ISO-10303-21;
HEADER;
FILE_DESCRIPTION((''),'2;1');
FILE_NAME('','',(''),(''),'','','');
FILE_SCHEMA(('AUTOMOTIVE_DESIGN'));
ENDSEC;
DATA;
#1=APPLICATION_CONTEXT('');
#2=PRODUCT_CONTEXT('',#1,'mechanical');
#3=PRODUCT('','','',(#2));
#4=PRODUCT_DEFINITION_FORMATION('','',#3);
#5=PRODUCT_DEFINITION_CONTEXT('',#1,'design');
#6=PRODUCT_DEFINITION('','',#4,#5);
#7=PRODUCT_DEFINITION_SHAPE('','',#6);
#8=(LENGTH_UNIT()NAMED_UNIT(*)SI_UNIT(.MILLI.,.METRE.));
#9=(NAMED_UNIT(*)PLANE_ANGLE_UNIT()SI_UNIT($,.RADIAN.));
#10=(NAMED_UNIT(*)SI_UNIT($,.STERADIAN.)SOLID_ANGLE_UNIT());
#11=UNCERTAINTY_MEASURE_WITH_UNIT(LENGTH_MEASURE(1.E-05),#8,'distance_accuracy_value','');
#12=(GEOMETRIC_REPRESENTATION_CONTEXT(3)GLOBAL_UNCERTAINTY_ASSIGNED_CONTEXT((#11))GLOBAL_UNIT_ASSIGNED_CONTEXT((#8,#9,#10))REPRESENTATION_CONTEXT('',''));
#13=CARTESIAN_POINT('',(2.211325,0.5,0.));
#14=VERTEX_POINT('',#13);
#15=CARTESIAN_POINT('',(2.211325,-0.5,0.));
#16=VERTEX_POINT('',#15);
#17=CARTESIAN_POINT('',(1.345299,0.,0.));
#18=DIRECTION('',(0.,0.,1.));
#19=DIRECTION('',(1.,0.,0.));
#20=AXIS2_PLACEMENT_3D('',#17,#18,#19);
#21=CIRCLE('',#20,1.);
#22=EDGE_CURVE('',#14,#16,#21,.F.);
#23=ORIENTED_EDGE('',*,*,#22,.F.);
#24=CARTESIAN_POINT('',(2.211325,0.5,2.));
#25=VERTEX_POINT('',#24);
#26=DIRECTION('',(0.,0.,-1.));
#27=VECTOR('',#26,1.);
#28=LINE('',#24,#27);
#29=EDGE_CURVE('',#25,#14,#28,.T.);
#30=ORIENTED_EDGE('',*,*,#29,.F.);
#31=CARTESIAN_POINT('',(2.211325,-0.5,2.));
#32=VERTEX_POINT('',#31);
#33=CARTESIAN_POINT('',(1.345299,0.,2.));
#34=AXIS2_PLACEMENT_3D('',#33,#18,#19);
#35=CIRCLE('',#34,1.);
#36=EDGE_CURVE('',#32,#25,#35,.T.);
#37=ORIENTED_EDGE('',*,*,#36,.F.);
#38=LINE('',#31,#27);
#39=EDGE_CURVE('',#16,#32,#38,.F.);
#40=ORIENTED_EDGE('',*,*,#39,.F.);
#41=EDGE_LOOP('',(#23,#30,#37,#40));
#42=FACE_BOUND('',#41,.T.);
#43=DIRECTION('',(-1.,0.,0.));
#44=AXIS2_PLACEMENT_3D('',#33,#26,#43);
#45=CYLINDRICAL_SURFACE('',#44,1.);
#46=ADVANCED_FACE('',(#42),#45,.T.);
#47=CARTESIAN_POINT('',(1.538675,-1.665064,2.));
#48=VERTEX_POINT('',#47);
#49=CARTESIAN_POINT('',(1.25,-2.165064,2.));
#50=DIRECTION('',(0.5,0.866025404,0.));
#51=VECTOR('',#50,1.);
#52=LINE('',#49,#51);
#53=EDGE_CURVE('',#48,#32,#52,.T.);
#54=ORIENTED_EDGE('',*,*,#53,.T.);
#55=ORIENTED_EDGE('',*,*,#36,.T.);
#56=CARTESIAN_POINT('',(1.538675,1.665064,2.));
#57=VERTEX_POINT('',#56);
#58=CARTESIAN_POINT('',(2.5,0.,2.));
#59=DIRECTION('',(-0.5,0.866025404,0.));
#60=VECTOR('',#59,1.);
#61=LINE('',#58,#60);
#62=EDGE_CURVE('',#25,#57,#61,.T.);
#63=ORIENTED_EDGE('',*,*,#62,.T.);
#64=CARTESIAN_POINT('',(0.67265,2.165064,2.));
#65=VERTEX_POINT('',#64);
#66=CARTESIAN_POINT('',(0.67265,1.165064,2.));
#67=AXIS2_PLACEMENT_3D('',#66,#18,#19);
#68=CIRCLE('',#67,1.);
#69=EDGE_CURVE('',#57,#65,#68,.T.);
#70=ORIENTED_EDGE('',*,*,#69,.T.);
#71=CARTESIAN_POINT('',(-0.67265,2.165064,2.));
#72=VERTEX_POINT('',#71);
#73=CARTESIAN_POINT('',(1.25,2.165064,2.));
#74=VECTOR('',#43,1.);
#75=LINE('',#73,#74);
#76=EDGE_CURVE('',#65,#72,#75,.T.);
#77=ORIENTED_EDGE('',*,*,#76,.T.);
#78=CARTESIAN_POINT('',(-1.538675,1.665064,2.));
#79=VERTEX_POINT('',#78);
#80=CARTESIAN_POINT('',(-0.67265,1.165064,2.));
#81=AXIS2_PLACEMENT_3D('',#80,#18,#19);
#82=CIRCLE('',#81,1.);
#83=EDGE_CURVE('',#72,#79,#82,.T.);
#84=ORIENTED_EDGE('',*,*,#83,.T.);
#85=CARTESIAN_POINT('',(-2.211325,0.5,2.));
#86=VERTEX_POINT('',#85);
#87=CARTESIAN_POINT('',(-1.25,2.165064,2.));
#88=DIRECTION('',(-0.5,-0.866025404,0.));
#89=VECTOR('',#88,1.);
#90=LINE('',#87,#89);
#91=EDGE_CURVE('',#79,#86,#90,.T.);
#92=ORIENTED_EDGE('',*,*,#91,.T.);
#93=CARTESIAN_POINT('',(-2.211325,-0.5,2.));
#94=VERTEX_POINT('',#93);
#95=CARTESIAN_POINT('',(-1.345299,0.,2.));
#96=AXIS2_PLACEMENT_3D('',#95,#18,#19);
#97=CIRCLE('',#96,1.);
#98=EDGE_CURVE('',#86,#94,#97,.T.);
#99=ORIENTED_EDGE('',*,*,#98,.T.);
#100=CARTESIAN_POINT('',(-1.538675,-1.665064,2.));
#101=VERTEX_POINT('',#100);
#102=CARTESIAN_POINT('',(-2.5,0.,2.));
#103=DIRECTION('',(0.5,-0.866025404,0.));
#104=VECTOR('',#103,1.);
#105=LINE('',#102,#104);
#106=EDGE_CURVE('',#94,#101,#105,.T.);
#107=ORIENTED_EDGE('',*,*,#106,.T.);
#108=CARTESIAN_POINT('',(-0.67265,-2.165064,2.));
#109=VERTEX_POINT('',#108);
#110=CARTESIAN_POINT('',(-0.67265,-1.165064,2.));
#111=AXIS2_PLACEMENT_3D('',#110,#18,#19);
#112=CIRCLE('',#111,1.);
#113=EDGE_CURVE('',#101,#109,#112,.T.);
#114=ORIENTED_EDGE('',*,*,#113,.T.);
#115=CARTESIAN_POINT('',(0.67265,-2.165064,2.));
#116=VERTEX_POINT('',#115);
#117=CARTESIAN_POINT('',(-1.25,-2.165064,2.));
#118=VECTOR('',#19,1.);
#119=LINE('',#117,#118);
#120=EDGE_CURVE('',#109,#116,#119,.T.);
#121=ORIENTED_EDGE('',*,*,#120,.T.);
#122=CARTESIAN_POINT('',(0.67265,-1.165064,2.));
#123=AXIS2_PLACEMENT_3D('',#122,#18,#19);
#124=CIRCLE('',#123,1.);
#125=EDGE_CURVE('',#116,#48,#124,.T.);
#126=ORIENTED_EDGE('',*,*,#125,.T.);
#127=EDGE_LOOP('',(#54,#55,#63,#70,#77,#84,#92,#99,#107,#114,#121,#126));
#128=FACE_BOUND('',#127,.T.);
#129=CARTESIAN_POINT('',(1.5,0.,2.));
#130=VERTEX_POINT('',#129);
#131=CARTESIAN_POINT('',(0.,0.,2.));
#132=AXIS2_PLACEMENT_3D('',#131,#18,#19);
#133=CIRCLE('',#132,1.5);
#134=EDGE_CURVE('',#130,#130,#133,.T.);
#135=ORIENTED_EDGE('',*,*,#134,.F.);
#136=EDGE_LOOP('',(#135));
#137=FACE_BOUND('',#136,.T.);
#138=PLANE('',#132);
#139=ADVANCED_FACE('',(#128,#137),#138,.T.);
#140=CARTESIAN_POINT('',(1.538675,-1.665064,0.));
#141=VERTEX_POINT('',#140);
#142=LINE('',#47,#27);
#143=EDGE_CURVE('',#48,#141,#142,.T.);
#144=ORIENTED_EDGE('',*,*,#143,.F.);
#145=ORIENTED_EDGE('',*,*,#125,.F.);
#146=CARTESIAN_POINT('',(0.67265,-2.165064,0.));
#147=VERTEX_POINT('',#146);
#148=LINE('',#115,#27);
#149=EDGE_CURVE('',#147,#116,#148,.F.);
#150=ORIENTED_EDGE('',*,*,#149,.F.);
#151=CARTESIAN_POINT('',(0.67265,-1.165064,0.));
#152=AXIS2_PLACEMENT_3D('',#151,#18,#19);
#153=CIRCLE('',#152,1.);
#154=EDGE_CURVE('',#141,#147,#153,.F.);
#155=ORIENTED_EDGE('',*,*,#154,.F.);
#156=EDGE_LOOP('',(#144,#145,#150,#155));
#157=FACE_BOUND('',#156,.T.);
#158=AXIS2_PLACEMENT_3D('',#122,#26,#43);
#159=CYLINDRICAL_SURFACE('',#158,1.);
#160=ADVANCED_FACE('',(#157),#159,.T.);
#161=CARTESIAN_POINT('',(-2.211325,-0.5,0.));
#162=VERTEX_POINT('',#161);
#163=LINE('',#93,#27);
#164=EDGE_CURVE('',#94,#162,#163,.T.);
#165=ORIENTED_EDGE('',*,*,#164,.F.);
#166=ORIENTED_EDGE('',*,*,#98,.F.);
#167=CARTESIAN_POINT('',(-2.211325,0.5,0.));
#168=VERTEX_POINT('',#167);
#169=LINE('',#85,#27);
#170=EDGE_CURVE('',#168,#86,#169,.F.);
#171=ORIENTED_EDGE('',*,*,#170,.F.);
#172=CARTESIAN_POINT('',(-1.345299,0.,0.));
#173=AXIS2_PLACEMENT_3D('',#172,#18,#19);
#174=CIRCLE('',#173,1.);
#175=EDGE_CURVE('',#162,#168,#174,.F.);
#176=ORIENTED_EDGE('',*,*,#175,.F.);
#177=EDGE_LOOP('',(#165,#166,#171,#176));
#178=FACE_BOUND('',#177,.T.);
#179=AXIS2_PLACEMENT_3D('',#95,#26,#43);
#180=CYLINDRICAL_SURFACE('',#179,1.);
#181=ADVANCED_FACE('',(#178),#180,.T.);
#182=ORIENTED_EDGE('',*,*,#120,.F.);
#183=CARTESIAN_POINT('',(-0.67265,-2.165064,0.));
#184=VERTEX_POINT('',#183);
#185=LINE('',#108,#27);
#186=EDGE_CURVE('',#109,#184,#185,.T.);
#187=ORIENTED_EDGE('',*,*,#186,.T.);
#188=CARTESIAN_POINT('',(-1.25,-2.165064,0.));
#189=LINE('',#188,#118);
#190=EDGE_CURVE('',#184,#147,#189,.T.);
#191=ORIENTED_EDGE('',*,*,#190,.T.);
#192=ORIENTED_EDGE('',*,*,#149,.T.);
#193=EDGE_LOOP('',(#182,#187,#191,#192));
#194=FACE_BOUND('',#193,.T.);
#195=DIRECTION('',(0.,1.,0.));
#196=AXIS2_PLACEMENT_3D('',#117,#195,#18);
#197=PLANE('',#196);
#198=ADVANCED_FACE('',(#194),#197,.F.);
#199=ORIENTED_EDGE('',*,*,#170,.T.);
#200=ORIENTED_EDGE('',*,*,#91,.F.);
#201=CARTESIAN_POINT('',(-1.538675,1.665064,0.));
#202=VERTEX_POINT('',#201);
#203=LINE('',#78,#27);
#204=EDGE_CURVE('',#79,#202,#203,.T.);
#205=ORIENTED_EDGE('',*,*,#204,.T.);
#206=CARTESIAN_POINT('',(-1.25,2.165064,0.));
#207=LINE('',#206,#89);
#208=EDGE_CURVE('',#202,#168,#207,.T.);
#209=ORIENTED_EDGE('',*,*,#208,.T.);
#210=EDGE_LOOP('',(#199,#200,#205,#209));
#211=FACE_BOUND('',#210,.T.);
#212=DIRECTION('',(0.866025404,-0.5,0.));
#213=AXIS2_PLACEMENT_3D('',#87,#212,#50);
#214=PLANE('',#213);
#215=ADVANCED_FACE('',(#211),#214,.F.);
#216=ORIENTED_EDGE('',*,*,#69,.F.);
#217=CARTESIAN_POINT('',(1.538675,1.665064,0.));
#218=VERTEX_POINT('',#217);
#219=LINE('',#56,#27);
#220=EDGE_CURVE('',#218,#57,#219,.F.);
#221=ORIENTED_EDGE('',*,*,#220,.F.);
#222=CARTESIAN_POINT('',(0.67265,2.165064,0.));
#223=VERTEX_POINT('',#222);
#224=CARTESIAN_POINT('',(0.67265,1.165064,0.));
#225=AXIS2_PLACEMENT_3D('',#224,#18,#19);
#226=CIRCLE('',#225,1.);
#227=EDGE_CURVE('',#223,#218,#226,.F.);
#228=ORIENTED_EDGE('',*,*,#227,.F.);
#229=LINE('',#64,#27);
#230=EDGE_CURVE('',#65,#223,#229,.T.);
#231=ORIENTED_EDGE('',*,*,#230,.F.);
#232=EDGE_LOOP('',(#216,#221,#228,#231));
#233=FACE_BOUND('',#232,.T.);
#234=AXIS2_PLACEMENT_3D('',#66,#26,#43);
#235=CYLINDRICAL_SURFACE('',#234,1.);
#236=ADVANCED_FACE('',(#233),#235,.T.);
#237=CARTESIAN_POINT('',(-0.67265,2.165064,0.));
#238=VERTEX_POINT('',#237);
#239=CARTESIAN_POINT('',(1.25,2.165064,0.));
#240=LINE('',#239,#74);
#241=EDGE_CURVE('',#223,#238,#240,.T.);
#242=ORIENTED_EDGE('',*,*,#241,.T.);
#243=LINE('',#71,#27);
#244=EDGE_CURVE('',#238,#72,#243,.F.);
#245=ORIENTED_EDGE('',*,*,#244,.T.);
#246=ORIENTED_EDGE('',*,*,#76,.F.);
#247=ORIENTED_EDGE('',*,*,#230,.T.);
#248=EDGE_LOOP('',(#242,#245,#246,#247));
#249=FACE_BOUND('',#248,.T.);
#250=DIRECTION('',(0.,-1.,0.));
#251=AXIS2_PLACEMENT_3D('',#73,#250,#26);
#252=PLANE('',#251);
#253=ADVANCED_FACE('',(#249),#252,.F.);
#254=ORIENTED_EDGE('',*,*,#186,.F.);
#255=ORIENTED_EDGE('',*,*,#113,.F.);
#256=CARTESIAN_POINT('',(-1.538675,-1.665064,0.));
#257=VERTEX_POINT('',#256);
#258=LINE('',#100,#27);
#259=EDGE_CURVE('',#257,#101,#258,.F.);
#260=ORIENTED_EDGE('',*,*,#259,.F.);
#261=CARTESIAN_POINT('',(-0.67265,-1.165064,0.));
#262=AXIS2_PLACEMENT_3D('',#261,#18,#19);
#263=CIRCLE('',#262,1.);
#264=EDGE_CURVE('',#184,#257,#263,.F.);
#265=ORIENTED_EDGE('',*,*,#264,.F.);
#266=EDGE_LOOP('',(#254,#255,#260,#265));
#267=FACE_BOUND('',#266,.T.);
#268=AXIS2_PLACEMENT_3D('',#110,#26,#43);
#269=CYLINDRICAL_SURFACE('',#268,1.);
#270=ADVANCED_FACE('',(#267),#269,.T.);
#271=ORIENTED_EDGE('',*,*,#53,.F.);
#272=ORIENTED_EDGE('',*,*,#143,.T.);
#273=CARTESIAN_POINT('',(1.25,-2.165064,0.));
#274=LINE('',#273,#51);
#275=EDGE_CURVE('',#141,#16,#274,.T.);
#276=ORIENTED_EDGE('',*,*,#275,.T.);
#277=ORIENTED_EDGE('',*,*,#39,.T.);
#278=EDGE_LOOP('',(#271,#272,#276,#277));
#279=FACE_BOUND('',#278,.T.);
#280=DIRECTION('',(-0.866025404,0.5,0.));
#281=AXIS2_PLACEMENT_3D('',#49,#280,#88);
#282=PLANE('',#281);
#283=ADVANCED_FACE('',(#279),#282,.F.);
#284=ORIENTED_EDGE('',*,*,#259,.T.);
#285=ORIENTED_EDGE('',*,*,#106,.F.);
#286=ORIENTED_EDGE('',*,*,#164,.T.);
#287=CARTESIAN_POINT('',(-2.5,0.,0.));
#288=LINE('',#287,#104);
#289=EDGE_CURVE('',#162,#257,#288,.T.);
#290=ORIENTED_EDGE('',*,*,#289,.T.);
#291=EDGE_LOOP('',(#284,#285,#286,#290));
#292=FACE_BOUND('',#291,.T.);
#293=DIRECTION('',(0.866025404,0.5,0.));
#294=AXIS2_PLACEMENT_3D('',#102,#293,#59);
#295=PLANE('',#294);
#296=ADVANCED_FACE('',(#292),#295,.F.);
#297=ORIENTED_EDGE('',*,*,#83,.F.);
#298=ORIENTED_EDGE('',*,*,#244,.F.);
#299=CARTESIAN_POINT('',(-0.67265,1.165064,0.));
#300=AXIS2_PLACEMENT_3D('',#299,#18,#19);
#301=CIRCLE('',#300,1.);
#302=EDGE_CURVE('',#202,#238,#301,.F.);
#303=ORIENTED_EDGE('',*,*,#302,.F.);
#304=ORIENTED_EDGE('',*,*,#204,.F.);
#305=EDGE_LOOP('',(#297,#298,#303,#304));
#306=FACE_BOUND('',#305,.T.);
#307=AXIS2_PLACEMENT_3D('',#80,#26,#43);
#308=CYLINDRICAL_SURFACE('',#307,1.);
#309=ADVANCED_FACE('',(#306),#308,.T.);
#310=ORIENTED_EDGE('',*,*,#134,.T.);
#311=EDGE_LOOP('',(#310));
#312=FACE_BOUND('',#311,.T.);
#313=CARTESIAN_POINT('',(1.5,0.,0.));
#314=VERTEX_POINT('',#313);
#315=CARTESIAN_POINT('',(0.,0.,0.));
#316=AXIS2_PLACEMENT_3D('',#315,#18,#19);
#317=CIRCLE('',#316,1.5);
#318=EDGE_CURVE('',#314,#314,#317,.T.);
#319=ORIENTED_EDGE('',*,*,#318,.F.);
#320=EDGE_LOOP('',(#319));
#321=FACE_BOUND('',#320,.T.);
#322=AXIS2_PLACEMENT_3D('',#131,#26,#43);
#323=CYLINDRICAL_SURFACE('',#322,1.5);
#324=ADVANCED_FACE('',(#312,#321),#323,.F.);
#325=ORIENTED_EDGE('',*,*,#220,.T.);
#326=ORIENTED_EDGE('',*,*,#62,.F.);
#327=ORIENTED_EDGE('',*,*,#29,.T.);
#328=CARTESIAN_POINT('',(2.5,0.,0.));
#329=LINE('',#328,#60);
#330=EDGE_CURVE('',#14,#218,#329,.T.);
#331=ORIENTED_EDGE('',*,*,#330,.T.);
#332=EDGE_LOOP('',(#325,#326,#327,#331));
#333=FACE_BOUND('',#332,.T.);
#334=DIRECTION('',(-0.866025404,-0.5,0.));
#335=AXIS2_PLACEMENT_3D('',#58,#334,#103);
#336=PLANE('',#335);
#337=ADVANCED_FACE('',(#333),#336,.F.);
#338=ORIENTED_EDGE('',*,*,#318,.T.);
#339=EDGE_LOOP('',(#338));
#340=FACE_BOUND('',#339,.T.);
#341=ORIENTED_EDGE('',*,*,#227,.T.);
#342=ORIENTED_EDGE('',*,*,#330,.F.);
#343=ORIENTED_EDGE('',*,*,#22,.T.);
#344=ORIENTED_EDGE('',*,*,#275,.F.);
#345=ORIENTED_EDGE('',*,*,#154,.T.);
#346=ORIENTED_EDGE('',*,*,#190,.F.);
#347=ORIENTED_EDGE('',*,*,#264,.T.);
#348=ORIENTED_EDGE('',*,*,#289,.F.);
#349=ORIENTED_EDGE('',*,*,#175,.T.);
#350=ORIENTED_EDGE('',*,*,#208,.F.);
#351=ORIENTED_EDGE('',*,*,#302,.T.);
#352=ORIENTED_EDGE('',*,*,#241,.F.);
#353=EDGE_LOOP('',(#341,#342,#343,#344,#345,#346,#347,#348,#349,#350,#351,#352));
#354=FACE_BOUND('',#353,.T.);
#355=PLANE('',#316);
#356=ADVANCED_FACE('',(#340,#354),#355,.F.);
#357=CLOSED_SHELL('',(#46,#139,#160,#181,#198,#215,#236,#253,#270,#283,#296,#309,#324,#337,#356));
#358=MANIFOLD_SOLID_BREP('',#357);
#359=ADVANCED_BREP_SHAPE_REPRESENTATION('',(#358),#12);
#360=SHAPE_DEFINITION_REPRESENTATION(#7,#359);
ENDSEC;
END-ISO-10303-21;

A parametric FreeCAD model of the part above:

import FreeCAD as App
import Part
import Sketcher

V = App.Vector
Q = App.Units.Quantity


def edges_at(feature, points):
    """Names of the edges that pass closest to the given points."""
    edges = feature.Shape.Edges
    near = lambda p: min(range(len(edges)), key=lambda i: edges[i].distToShape(Part.Vertex(*p))[0])
    return sorted({f"Edge{near(p) + 1}" for p in points})


def add_polygon(sketch, points):
    """Adds a closed chain of lines whose ends are joined by coincident constraints."""
    first, n = sketch.GeometryCount, len(points)
    for a, b in zip(points, points[1:] + points[:1]):
        sketch.addGeometry(Part.LineSegment(App.Vector(*a, 0), App.Vector(*b, 0)), False)
    for i in range(n):
        sketch.addConstraint(Sketcher.Constraint("Coincident", first + i, 2, first + (i + 1) % n, 1))

doc = App.newDocument("Part")
body = doc.addObject("PartDesign::Body", "Body")

sketch1 = body.newObject("Sketcher::SketchObject", "Sketch")
sketch1.AttachmentSupport = (doc.getObject("XY_Plane"), [""])
sketch1.MapMode = "FlatFace"
add_polygon(sketch1, [(1.2, 2.2), (-1.2, 2.2), (-2.5, 0), (-1.2, -2.2), (1.2, -2.2), (2.5, 0)])
sketch1.addGeometry(Part.Circle(V(0, 0, 0), V(0, 0, 1), 1.5), False)
sketch1.addConstraint([
    Sketcher.Constraint("Horizontal", 0),
    Sketcher.Constraint("Horizontal", 3),
    Sketcher.Constraint("Coincident", 6, 3, -1, 1),
    Sketcher.Constraint("Symmetric", 0, 2, 3, 2, -1, 1),
    Sketcher.Constraint("Symmetric", 1, 2, 4, 2, -1, 1),
    Sketcher.Constraint("PointOnObject", 1, 2, -1),
    Sketcher.Constraint("Parallel", 2, 5),
    Sketcher.Constraint("Vertical", 0, 2, 2, 2),
    Sketcher.Constraint("Diameter", 6, Q("3 mm")),
    Sketcher.Constraint("Angle", 1, Q("-120 deg")),
    Sketcher.Constraint("DistanceX", 0, 2, 0, 1, Q("2.5 mm")),
    Sketcher.Constraint("DistanceX", 1, 2, 4, 2, Q("5 mm")),
])
pad1 = body.newObject("PartDesign::Pad", "Pad")
pad1.Profile = sketch1
pad1.Length = 2
doc.recompute()

fillet = body.newObject("PartDesign::Fillet", "Fillet")
fillet.Base = (pad1, edges_at(pad1, [
    (2.5, 0, 1),
    (1.25, -2.165, 1),
    (-1.25, -2.165, 1),
    (-2.5, 0, 1),
    (-1.25, 2.165, 1),
    (1.25, 2.165, 1),
]))
fillet.Radius = 1

doc.recompute()
